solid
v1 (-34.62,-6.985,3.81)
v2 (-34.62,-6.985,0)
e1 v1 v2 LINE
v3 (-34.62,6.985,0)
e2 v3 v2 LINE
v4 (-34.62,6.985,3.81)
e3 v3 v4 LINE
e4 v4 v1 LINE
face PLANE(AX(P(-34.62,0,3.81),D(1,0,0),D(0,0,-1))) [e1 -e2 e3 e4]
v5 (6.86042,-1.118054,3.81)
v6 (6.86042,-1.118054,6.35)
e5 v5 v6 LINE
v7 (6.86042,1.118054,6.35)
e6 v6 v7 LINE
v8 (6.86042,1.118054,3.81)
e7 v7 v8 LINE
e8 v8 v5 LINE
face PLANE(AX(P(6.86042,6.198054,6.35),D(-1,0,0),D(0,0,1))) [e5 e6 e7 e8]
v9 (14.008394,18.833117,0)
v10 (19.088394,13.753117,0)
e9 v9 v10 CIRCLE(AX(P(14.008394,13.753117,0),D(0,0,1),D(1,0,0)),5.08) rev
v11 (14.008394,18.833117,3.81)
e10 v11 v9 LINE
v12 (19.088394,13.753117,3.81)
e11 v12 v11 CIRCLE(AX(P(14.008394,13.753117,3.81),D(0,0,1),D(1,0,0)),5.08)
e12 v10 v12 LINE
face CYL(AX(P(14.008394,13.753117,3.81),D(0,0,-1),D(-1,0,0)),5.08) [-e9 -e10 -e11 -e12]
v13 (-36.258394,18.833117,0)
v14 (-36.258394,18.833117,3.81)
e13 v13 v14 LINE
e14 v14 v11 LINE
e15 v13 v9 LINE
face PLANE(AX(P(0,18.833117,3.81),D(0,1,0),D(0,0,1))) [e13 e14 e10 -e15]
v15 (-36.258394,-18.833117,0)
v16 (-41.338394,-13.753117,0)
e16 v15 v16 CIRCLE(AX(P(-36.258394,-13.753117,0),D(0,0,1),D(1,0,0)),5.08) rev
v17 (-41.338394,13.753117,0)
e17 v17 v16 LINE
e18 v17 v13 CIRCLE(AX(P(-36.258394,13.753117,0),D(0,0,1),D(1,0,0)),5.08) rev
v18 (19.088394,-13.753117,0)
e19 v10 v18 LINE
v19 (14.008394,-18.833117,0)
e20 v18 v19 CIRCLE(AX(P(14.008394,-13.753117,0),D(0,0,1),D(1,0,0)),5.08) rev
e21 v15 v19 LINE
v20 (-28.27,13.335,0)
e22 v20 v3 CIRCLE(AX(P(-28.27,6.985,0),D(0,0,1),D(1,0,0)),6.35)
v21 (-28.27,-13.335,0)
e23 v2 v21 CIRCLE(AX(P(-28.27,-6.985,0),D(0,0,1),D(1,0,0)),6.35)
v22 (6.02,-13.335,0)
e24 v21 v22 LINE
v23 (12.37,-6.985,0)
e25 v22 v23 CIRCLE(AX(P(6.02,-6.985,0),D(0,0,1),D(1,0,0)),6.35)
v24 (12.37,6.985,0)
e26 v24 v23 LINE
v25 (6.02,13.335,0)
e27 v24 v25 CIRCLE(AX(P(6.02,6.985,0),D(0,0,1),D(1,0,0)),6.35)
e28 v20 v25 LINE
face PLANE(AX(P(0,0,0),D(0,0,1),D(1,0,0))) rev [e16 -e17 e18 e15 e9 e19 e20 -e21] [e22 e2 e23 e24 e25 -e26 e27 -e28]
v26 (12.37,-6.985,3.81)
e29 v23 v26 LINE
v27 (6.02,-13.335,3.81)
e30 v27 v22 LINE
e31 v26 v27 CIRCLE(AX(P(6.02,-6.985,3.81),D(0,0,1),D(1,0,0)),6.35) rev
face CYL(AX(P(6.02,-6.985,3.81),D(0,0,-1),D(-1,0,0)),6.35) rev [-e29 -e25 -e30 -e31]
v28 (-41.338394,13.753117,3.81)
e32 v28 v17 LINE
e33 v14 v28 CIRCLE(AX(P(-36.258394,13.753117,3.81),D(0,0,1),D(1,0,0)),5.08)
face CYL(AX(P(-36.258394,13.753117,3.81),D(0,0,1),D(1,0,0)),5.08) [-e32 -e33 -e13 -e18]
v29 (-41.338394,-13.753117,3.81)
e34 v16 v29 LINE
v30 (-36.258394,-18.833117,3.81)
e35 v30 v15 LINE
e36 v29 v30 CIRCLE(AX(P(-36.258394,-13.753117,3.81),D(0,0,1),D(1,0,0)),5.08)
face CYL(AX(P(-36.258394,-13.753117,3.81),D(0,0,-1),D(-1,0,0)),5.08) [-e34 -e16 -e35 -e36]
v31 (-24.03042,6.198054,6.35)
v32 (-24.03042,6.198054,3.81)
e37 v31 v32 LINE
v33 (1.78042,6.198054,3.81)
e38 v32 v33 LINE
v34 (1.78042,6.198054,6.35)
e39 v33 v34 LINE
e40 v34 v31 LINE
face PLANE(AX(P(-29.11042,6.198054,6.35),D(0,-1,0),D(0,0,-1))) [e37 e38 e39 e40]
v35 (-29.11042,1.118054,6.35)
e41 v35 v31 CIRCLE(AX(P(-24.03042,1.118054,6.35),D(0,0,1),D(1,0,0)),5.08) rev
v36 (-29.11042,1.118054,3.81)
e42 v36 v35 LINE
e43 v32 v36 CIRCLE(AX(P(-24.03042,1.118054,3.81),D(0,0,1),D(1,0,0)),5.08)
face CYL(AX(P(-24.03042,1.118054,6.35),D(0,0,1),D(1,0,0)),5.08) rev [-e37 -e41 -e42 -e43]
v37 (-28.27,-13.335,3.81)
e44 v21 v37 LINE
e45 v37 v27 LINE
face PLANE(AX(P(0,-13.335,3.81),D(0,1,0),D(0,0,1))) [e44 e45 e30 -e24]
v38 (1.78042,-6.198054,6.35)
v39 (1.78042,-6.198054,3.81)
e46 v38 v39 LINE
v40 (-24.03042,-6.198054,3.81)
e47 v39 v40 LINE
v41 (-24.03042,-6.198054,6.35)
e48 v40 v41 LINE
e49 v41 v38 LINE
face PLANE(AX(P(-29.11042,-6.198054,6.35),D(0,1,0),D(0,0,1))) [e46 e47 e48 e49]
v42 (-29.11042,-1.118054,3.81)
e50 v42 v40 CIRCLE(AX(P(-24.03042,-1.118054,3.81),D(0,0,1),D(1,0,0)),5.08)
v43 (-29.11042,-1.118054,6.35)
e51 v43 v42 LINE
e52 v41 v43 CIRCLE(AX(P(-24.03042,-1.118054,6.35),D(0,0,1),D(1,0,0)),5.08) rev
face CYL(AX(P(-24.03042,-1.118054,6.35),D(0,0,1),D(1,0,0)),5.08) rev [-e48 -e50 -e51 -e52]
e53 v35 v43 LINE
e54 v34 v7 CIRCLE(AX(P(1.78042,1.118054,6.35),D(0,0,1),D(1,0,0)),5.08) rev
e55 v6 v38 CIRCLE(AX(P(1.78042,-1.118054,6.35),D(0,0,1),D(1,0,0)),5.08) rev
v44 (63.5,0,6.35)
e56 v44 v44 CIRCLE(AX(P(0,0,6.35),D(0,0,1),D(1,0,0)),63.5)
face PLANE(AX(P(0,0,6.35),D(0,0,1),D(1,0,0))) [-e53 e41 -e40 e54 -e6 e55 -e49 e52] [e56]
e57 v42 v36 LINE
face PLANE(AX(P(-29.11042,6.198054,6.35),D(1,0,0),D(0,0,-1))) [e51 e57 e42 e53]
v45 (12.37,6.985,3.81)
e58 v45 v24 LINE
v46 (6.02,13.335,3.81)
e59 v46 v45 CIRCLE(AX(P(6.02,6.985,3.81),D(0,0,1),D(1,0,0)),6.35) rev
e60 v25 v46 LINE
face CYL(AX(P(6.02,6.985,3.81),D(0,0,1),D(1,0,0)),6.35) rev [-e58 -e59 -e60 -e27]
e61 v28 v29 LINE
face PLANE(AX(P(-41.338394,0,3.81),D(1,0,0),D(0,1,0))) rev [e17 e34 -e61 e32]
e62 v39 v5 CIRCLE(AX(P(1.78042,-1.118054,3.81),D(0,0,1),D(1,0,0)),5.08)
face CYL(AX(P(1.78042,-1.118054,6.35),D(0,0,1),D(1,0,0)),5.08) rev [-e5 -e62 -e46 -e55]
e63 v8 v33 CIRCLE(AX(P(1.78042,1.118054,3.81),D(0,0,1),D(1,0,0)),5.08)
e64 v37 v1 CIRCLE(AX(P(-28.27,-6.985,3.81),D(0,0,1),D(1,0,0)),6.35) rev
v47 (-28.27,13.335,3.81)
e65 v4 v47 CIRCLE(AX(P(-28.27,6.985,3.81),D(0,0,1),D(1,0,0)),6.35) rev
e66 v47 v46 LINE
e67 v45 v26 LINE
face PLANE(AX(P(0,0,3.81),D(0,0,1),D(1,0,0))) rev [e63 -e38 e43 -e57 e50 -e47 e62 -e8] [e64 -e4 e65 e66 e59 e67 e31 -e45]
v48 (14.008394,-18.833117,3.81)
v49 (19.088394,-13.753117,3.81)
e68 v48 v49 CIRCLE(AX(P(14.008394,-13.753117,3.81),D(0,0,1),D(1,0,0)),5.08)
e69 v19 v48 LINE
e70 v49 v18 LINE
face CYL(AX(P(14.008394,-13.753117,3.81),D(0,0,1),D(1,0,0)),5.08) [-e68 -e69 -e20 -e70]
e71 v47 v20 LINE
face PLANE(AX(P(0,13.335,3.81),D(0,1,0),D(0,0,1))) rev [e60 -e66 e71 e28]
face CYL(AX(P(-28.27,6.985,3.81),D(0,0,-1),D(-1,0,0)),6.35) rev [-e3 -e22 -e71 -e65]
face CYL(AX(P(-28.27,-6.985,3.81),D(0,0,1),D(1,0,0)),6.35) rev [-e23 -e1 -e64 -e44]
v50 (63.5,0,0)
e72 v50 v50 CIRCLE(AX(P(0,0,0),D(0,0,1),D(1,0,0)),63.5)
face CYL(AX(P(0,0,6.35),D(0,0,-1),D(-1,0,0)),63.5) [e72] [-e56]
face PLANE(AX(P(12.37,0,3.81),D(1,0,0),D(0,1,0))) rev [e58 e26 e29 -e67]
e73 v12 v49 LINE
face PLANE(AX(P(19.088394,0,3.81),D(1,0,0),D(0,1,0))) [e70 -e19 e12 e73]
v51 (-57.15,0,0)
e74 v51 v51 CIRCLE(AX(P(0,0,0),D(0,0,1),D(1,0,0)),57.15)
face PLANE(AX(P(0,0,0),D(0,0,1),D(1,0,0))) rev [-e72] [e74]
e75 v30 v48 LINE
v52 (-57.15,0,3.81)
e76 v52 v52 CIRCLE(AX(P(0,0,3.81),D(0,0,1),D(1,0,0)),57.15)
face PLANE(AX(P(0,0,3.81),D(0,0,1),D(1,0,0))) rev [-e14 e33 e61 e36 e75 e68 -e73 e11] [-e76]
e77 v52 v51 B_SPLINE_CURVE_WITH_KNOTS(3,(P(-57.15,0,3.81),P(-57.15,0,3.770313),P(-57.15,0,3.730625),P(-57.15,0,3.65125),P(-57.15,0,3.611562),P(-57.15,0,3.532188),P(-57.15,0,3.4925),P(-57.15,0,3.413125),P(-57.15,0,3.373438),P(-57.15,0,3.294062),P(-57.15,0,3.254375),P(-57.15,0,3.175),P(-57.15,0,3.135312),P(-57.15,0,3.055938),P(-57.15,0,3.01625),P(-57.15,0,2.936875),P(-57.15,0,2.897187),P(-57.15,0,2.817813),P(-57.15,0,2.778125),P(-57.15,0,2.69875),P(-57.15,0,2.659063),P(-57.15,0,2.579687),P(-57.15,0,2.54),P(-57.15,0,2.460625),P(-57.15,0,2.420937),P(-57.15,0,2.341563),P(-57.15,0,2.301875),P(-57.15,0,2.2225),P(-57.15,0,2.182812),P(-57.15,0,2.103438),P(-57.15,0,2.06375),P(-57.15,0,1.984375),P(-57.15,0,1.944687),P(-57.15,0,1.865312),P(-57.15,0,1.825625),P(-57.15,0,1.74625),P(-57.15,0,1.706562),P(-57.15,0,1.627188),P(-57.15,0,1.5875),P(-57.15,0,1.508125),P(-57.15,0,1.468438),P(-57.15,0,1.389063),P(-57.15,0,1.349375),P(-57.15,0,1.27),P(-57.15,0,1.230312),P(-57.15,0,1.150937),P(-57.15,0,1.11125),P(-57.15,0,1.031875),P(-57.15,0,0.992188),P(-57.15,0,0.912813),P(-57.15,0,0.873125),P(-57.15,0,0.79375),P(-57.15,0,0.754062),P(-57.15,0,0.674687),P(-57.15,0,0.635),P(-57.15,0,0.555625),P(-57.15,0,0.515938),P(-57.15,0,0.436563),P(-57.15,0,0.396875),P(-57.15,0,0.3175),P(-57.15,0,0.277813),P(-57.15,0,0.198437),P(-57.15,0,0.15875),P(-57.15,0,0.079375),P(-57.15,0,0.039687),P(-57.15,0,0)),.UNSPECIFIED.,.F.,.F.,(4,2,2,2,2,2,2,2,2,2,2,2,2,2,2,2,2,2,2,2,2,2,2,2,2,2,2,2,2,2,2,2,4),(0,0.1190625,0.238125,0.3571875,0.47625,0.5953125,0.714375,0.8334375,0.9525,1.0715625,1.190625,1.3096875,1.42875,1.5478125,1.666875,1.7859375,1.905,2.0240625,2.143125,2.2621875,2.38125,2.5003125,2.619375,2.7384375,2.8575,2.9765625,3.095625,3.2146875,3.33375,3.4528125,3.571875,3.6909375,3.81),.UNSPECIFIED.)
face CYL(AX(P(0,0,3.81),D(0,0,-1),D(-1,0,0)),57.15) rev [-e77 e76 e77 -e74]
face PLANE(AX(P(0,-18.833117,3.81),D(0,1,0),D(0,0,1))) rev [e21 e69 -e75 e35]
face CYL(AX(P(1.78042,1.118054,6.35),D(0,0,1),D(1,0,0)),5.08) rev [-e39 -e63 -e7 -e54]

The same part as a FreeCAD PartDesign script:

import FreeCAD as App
import Part
import Sketcher
Q = App.Units.Quantity


def edges_at(feature, points):
    """Names of the edges that pass closest to the given points."""
    edges = feature.Shape.Edges
    near = lambda p: min(range(len(edges)), key=lambda i: edges[i].distToShape(Part.Vertex(*p))[0])
    return sorted({f"Edge{near(p) + 1}" for p in points})

doc = App.newDocument("Part")
params = doc.addObject("Spreadsheet::Sheet", "Params")
for row, (alias, value) in enumerate([
    ("sketch1_diameter", "5 in"),
    ("pad1_length", "0.25 in"),
    ("sketch2_width", "1.85 in"),
    ("sketch2_height", "1.05 in"),
    ("pocket1_length", "0.15 in"),
    ("fillet_radius", "0.25 in"),
    ("pocket2_length", "0.25 in"),
    ("fillet2_radius", "0.2 in"),
    ("sketch4_diameter", "4.5 in"),
    ("pocket3_length", "0.15 in"),
    ("fillet3_radius", "0.2 in"),
], start=1):
    params.set(f"A{row}", alias)
    params.set(f"B{row}", "=" + value)
    params.setAlias(f"B{row}", alias)

body = doc.addObject("PartDesign::Body", "Body")

sketch1 = body.newObject("Sketcher::SketchObject", "Sketch")
sketch1.AttachmentSupport = (doc.getObject("XY_Plane"), [""])
sketch1.MapMode = "FlatFace"
sketch1.addGeometry(Part.Circle(App.Vector(0, 0, 0), App.Vector(0, 0, 1), 64), False)
sketch1.addConstraint(Sketcher.Constraint("Coincident", 0, 3, -1, 1))
sketch1.addConstraint(Sketcher.Constraint("Diameter", 0, Q("5 in")))
sketch1.setExpression("Constraints[1]", "Params.sketch1_diameter")
pad1 = body.newObject("PartDesign::Pad", "Pad")
pad1.Profile = sketch1
pad1.setExpression("Length", "Params.pad1_length")

sketch2 = body.newObject("Sketcher::SketchObject", "Sketch001")
sketch2.AttachmentSupport = (doc.getObject("XY_Plane"), [""])
sketch2.MapMode = "FlatFace"
sketch2.addGeometry(Part.LineSegment(App.Vector(-35, 13, 0), App.Vector(-35, -13, 0)), False)
sketch2.addGeometry(Part.LineSegment(App.Vector(-35, -13, 0), App.Vector(12, -13, 0)), False)
sketch2.addGeometry(Part.LineSegment(App.Vector(12, -13, 0), App.Vector(12, 13, 0)), False)
sketch2.addGeometry(Part.LineSegment(App.Vector(12, 13, 0), App.Vector(-35, 13, 0)), False)
sketch2.addConstraint(Sketcher.Constraint("Coincident", 0, 2, 1, 1))
sketch2.addConstraint(Sketcher.Constraint("Coincident", 1, 2, 2, 1))
sketch2.addConstraint(Sketcher.Constraint("Coincident", 2, 2, 3, 1))
sketch2.addConstraint(Sketcher.Constraint("Coincident", 3, 2, 0, 1))
sketch2.addConstraint(Sketcher.Constraint("Vertical", 0))
sketch2.addConstraint(Sketcher.Constraint("Horizontal", 1))
sketch2.addConstraint(Sketcher.Constraint("Vertical", 2))
sketch2.addConstraint(Sketcher.Constraint("Horizontal", 3))
sketch2.addConstraint(Sketcher.Constraint("DistanceX", 1, 1, 1, 2, Q("1.85 in")))
sketch2.addConstraint(Sketcher.Constraint("DistanceY", 0, 2, 0, 1, Q("1.05 in")))
sketch2.addConstraint(Sketcher.Constraint("DistanceY", 0, 2, -1, 1, Q("0.525 in")))
sketch2.addConstraint(Sketcher.Constraint("DistanceX", 0, 2, -1, 1, Q("34.62 mm")))
sketch2.setExpression("Constraints[8]", "Params.sketch2_width")
sketch2.setExpression("Constraints[9]", "Params.sketch2_height")
pocket1 = body.newObject("PartDesign::Pocket", "Pocket")
pocket1.Profile = sketch2
pocket1.setExpression("Length", "Params.pocket1_length")
pocket1.Reversed = True
doc.recompute()

fillet = body.newObject("PartDesign::Fillet", "Fillet")
fillet.Base = (pocket1, edges_at(pocket1, [
    (12.37, -13.335, 1.905),
    (12.37, 13.335, 1.905),
    (-34.62, 13.335, 1.905),
    (-34.62, -13.335, 1.905),
]))
fillet.setExpression("Radius", "Params.fillet_radius")

sketch3 = body.newObject("Sketcher::SketchObject", "Sketch002")
sketch3.AttachmentSupport = (doc.getObject("XY_Plane"), [""])
sketch3.MapMode = "FlatFace"
sketch3.addGeometry(Part.LineSegment(App.Vector(-29, 6, 0), App.Vector(-29, -6, 0)), False)
sketch3.addGeometry(Part.LineSegment(App.Vector(-29, -6, 0), App.Vector(7, -6, 0)), False)
sketch3.addGeometry(Part.LineSegment(App.Vector(7, -6, 0), App.Vector(7, 6, 0)), False)
sketch3.addGeometry(Part.LineSegment(App.Vector(7, 6, 0), App.Vector(-29, 6, 0)), False)
sketch3.addConstraint(Sketcher.Constraint("Coincident", 0, 2, 1, 1))
sketch3.addConstraint(Sketcher.Constraint("Coincident", 1, 2, 2, 1))
sketch3.addConstraint(Sketcher.Constraint("Coincident", 2, 2, 3, 1))
sketch3.addConstraint(Sketcher.Constraint("Coincident", 3, 2, 0, 1))
sketch3.addConstraint(Sketcher.Constraint("Vertical", 0))
sketch3.addConstraint(Sketcher.Constraint("Horizontal", 1))
sketch3.addConstraint(Sketcher.Constraint("Vertical", 2))
sketch3.addConstraint(Sketcher.Constraint("Horizontal", 3))
sketch3.addConstraint(Sketcher.Constraint("DistanceX", 1, 1, 1, 2, Q("35.970839 mm")))
sketch3.addConstraint(Sketcher.Constraint("DistanceY", 0, 2, 0, 1, Q("12.396109 mm")))
sketch3.addConstraint(Sketcher.Constraint("DistanceX", 0, 2, -1, 1, Q("29.11042 mm")))
sketch3.addConstraint(Sketcher.Constraint("DistanceY", 0, 2, -1, 1, Q("6.198054 mm")))
pocket2 = body.newObject("PartDesign::Pocket", "Pocket001")
pocket2.Profile = sketch3
pocket2.setExpression("Length", "Params.pocket2_length")
pocket2.Reversed = True
doc.recompute()

fillet2 = body.newObject("PartDesign::Fillet", "Fillet001")
fillet2.Base = (pocket2, edges_at(pocket2, [
    (6.86, -6.198, 5.08),
    (6.86, 6.198, 5.08),
    (-29.11, 6.198, 5.08),
    (-29.11, -6.198, 5.08),
]))
fillet2.setExpression("Radius", "Params.fillet2_radius")

sketch4 = body.newObject("Sketcher::SketchObject", "Sketch003")
sketch4.AttachmentSupport = (doc.getObject("XY_Plane"), [""])
sketch4.MapMode = "FlatFace"
sketch4.addGeometry(Part.Circle(App.Vector(0, 0, 0), App.Vector(0, 0, 1), 57), False)
sketch4.addGeometry(Part.LineSegment(App.Vector(19, -19, 0), App.Vector(-41, -19, 0)), False)
sketch4.addGeometry(Part.LineSegment(App.Vector(-41, -19, 0), App.Vector(-41, 19, 0)), False)
sketch4.addGeometry(Part.LineSegment(App.Vector(-41, 19, 0), App.Vector(19, 19, 0)), False)
sketch4.addGeometry(Part.LineSegment(App.Vector(19, 19, 0), App.Vector(19, -19, 0)), False)
sketch4.addConstraint(Sketcher.Constraint("Coincident", 1, 2, 2, 1))
sketch4.addConstraint(Sketcher.Constraint("Coincident", 2, 2, 3, 1))
sketch4.addConstraint(Sketcher.Constraint("Coincident", 3, 2, 4, 1))
sketch4.addConstraint(Sketcher.Constraint("Coincident", 4, 2, 1, 1))
sketch4.addConstraint(Sketcher.Constraint("Horizontal", 1))
sketch4.addConstraint(Sketcher.Constraint("Vertical", 2))
sketch4.addConstraint(Sketcher.Constraint("Horizontal", 3))
sketch4.addConstraint(Sketcher.Constraint("Vertical", 4))
sketch4.addConstraint(Sketcher.Constraint("Coincident", 0, 3, -1, 1))
sketch4.addConstraint(Sketcher.Constraint("Diameter", 0, Q("4.5 in")))
sketch4.addConstraint(Sketcher.Constraint("DistanceX", 1, 2, 1, 1, Q("60.426788 mm")))
sketch4.addConstraint(Sketcher.Constraint("DistanceY", 2, 1, 2, 2, Q("37.666234 mm")))
sketch4.addConstraint(Sketcher.Constraint("DistanceX", 1, 2, -1, 1, Q("41.338394 mm")))
sketch4.addConstraint(Sketcher.Constraint("DistanceY", 1, 2, -1, 1, Q("18.833117 mm")))
sketch4.setExpression("Constraints[9]", "Params.sketch4_diameter")
pocket3 = body.newObject("PartDesign::Pocket", "Pocket002")
pocket3.Profile = sketch4
pocket3.setExpression("Length", "Params.pocket3_length")
pocket3.Reversed = True
doc.recompute()

fillet3 = body.newObject("PartDesign::Fillet", "Fillet002")
fillet3.Base = (pocket3, edges_at(pocket3, [
    (-41.338, 18.833, 1.905),
    (19.088, 18.833, 1.905),
    (19.088, -18.833, 1.905),
    (-41.338, -18.833, 1.905),
]))
fillet3.setExpression("Radius", "Params.fillet3_radius")

doc.recompute()
